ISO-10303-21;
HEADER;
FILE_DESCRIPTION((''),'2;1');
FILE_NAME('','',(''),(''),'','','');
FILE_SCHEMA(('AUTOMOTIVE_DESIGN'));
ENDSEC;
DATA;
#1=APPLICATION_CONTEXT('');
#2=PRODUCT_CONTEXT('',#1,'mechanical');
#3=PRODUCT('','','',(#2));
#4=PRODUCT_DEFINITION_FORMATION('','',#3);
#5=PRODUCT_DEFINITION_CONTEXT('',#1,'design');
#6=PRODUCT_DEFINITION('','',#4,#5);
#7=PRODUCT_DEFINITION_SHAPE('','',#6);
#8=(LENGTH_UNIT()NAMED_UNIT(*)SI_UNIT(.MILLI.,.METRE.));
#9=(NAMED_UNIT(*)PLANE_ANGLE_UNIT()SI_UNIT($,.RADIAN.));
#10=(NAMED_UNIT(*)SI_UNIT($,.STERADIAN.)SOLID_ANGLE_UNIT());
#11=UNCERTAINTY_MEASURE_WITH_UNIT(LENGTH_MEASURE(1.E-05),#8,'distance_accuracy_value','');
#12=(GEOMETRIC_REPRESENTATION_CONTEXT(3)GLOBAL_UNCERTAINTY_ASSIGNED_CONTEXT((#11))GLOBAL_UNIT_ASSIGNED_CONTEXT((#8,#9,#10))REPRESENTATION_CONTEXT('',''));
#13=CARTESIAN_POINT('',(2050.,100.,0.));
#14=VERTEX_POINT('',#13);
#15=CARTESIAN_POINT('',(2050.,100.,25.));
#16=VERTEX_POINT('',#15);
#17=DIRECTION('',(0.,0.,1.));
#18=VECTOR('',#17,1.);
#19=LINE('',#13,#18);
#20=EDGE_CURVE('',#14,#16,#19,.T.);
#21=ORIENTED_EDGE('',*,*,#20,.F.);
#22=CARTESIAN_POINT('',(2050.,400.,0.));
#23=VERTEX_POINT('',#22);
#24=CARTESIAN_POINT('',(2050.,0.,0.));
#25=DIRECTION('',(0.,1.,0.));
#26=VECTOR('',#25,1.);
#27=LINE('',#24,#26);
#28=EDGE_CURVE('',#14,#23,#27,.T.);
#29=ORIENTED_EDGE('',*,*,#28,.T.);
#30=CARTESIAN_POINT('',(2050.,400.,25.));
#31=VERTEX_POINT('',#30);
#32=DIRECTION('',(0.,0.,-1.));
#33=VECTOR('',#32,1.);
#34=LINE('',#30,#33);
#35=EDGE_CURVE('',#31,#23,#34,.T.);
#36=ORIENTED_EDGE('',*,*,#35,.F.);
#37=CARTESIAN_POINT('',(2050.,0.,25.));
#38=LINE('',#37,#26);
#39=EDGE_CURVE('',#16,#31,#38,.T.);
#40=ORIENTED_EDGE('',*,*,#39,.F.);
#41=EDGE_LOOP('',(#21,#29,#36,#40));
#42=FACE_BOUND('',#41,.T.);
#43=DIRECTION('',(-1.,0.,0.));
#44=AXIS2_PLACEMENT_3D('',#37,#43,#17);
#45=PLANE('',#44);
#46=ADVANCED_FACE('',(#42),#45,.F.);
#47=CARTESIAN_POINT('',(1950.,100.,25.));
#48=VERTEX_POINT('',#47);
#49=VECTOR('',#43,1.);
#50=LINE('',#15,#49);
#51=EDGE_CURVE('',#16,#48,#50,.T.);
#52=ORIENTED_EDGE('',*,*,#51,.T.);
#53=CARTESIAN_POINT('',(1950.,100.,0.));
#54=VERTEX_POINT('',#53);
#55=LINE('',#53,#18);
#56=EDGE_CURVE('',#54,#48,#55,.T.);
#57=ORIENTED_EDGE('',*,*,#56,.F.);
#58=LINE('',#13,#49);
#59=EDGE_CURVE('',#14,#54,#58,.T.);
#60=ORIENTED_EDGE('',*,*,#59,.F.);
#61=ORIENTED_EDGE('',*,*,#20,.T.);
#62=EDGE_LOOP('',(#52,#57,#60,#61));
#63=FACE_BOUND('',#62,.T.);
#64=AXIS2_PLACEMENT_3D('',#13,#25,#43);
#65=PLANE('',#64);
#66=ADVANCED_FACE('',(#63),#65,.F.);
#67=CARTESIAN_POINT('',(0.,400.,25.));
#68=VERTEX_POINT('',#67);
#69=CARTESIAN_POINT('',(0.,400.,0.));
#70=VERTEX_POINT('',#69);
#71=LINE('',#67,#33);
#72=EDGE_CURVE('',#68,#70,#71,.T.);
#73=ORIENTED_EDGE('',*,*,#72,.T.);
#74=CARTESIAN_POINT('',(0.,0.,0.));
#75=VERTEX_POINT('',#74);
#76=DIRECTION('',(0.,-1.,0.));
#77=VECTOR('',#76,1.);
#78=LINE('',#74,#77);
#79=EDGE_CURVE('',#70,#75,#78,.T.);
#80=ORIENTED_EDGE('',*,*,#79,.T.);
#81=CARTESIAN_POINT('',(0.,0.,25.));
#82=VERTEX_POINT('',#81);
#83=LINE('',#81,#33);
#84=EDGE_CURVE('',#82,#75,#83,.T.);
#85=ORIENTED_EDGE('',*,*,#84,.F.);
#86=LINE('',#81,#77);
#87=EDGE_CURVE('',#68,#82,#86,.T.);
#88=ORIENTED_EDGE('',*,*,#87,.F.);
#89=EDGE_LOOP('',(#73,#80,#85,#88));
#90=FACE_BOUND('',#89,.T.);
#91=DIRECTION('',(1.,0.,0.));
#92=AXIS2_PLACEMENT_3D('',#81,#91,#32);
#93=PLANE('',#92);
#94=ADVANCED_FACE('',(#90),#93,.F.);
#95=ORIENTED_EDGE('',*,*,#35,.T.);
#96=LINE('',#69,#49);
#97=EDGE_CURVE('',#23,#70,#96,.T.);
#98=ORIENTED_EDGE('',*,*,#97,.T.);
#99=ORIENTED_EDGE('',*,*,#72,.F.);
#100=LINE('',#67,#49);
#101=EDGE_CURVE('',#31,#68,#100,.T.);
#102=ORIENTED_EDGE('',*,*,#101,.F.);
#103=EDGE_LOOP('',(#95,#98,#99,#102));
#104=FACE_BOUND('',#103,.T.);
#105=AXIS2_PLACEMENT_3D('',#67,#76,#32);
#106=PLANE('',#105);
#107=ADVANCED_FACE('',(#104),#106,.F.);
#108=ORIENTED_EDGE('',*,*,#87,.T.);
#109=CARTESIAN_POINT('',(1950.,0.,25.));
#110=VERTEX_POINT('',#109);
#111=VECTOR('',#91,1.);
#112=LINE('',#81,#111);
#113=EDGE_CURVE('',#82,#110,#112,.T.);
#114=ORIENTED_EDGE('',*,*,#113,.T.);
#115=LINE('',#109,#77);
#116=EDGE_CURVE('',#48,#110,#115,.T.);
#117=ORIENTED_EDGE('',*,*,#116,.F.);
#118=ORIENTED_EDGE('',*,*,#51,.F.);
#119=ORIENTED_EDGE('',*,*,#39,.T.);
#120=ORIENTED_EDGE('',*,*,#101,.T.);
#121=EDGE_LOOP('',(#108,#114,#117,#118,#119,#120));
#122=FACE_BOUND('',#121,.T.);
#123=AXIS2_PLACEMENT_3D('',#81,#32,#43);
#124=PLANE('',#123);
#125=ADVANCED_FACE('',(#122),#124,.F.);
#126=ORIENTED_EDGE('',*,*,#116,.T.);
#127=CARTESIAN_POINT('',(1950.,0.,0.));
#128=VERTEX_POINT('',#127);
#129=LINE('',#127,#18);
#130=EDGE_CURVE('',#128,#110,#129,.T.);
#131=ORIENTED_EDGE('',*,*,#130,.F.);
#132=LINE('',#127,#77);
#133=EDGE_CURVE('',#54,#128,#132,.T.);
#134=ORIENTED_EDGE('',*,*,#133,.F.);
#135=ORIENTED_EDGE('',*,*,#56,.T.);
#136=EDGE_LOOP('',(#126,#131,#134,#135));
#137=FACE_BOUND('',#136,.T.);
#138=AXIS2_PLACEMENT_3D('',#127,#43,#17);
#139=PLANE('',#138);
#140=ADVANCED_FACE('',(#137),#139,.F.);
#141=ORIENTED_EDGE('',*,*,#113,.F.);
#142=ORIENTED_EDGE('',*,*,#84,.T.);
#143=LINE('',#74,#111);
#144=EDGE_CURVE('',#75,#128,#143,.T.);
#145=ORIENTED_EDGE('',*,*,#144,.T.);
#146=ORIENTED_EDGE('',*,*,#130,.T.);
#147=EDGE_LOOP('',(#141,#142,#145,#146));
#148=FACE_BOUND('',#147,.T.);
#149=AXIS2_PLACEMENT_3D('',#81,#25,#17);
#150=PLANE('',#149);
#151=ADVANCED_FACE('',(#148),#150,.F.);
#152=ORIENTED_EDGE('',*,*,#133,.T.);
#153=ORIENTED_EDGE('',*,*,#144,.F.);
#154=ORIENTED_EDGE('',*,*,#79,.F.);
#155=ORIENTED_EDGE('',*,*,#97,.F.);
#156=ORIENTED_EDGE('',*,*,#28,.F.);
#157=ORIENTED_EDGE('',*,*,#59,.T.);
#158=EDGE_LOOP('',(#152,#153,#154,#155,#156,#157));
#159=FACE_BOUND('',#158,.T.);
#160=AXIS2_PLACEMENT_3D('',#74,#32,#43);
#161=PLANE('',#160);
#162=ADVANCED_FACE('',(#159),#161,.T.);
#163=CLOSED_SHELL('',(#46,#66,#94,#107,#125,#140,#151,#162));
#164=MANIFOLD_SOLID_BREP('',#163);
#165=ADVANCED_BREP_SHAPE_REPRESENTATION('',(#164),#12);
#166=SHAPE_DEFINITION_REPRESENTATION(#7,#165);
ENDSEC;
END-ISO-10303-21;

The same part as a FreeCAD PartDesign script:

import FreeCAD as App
import Part
import Sketcher
from FreeCAD import Vector
Q = App.Units.Quantity

doc = App.newDocument("Part")
body = doc.addObject("PartDesign::Body", "Body")

sketch1 = body.newObject("Sketcher::SketchObject", "Sketch")
sketch1.AttachmentSupport = (doc.getObject("XY_Plane"), [""])
sketch1.MapMode = "FlatFace"
sketch1.addGeometry([
    Part.LineSegment(Vector(0, 400, 0), Vector(0, 0, 0)),
    Part.LineSegment(Vector(0, 0, 0), Vector(2050, 0, 0)),
    Part.LineSegment(Vector(2050, 0, 0), Vector(2050, 400, 0)),
    Part.LineSegment(Vector(2050, 400, 0), Vector(0, 400, 0)),
], False)
sketch1.addConstraint([
    Sketcher.Constraint("Coincident", 0, 2, 1, 1),
    Sketcher.Constraint("Coincident", 1, 2, 2, 1),
    Sketcher.Constraint("Coincident", 2, 2, 3, 1),
    Sketcher.Constraint("Coincident", 3, 2, 0, 1),
    Sketcher.Constraint("Vertical", 0),
    Sketcher.Constraint("Horizontal", 1),
    Sketcher.Constraint("Vertical", 2),
    Sketcher.Constraint("Horizontal", 3),
    Sketcher.Constraint("Coincident", 0, 2, -1, 1),
    Sketcher.Constraint("DistanceX", 1, 1, 1, 2, Q("2050 mm")),
    Sketcher.Constraint("DistanceY", 0, 2, 0, 1, Q("400 mm")),
])
pad1 = body.newObject("PartDesign::Pad", "Pad")
pad1.Profile = sketch1
pad1.Length = 25

sketch2 = body.newObject("Sketcher::SketchObject", "Sketch001")
sketch2.AttachmentSupport = (doc.getObject("XY_Plane"), [""])
sketch2.MapMode = "FlatFace"
sketch2.AttachmentOffset = App.Placement(Vector(0, 0, 25), App.Rotation())
sketch2.addGeometry([
    Part.LineSegment(Vector(1950, 100, 0), Vector(1950, 0, 0)),
    Part.LineSegment(Vector(1950, 0, 0), Vector(2050, 0, 0)),
    Part.LineSegment(Vector(2050, 0, 0), Vector(2050, 100, 0)),
    Part.LineSegment(Vector(2050, 100, 0), Vector(1950, 100, 0)),
], False)
sketch2.addConstraint([
    Sketcher.Constraint("Coincident", 0, 2, 1, 1),
    Sketcher.Constraint("Coincident", 1, 2, 2, 1),
    Sketcher.Constraint("Coincident", 2, 2, 3, 1),
    Sketcher.Constraint("Coincident", 3, 2, 0, 1),
    Sketcher.Constraint("Vertical", 0),
    Sketcher.Constraint("Horizontal", 1),
    Sketcher.Constraint("Vertical", 2),
    Sketcher.Constraint("Horizontal", 3),
    Sketcher.Constraint("PointOnObject", 0, 2, -1),
    Sketcher.Constraint("Equal", 3, 0),
    Sketcher.Constraint("DistanceX", 1, 1, 1, 2, Q("100 mm")),
    Sketcher.Constraint("DistanceX", -1, 1, 0, 2, Q("1950 mm")),
])
pocket1 = body.newObject("PartDesign::Pocket", "Pocket")
pocket1.Profile = sketch2
pocket1.Length = 25

doc.recompute()
